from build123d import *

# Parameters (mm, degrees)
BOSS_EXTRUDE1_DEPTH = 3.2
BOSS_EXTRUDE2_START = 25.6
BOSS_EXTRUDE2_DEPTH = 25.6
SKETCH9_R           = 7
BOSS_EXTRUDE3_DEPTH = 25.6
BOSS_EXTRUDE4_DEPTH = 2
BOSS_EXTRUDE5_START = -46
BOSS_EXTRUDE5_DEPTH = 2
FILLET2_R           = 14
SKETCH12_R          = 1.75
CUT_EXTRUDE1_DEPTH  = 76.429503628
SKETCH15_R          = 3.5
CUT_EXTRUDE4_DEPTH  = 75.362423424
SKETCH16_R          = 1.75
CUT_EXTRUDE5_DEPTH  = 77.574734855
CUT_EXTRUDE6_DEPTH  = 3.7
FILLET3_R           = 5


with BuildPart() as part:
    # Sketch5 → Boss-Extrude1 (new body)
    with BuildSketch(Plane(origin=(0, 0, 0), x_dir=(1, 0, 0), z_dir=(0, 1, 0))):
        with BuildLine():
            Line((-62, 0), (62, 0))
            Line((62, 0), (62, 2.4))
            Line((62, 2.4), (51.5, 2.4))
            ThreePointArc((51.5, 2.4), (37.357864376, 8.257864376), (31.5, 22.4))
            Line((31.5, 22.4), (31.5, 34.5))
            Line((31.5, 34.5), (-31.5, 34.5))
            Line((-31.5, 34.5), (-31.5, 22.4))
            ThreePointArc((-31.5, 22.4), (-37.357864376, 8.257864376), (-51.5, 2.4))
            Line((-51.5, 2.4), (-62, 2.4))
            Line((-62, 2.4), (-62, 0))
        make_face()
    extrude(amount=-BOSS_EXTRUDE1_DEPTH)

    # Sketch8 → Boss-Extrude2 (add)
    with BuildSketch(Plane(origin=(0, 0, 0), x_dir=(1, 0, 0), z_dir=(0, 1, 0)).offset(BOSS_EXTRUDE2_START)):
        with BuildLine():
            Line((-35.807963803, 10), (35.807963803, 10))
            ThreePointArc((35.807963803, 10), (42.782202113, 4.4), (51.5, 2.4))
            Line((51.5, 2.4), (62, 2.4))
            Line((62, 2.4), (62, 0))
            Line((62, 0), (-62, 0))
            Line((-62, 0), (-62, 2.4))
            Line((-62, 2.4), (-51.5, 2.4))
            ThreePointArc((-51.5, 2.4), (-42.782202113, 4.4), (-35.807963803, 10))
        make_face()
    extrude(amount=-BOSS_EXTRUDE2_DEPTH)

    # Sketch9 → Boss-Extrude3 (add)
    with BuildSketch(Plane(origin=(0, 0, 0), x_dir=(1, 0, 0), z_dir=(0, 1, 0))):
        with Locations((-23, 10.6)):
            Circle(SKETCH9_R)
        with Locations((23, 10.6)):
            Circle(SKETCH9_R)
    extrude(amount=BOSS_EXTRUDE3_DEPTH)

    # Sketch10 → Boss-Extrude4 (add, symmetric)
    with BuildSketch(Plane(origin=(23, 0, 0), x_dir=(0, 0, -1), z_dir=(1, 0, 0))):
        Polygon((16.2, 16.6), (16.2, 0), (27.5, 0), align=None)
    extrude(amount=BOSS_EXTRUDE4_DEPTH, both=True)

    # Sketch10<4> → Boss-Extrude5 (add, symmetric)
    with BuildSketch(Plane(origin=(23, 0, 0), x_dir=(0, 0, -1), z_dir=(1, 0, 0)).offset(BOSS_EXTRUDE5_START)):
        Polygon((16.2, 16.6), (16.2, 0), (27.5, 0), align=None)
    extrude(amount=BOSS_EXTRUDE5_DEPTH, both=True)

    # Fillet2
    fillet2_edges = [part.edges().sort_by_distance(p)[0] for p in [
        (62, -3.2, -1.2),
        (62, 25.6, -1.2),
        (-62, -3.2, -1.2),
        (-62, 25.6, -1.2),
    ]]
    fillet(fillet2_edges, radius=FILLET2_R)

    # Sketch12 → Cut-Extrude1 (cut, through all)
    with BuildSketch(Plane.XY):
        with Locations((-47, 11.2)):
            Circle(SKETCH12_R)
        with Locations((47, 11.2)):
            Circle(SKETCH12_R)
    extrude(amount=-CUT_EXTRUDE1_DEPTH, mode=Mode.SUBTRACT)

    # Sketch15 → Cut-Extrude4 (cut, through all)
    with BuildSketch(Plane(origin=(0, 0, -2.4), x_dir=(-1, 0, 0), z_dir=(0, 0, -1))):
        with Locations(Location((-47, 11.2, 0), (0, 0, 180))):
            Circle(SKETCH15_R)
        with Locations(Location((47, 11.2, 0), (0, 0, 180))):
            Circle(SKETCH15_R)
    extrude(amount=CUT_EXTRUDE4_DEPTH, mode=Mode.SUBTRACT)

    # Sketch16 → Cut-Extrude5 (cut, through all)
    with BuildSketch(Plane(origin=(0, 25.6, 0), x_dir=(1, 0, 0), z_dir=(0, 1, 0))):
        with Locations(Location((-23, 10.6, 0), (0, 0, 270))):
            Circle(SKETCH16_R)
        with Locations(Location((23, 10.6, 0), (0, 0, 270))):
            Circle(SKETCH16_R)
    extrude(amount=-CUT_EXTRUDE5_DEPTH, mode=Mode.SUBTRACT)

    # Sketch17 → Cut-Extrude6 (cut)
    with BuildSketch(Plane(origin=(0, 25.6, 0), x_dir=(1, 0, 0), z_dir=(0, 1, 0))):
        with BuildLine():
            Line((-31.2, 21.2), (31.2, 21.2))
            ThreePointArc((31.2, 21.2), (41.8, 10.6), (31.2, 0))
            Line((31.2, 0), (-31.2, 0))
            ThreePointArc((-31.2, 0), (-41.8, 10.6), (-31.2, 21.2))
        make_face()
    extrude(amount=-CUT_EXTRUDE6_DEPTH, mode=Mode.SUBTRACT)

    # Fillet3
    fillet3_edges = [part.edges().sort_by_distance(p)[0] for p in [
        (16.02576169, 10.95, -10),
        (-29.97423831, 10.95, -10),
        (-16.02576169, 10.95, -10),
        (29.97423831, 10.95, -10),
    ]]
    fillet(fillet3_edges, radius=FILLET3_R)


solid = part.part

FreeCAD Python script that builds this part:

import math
import FreeCAD as App
import Part
import Sketcher
from FreeCAD import Vector


def edges_at(feature, points):
    """Names of the edges that pass closest to the given points."""
    edges = feature.Shape.Edges
    near = lambda p: min(range(len(edges)), key=lambda i: edges[i].distToShape(Part.Vertex(*p))[0])
    return sorted({f"Edge{near(p) + 1}" for p in points})


def add_polygon(sketch, points):
    """Adds a closed chain of lines whose ends are joined by coincident constraints."""
    first, n = sketch.GeometryCount, len(points)
    for a, b in zip(points, points[1:] + points[:1]):
        sketch.addGeometry(Part.LineSegment(App.Vector(*a, 0), App.Vector(*b, 0)), False)
    for i in range(n):
        sketch.addConstraint(Sketcher.Constraint("Coincident", first + i, 2, first + (i + 1) % n, 1))

doc = App.newDocument("Part")
body = doc.addObject("PartDesign::Body", "Body")

sketch1 = doc.addObject("Sketcher::SketchObject", "Sketch")
body.addObject(sketch1)
sketch1.AttachmentSupport = (doc.XZ_Plane, [""])
sketch1.MapMode = "FlatFace"
sketch1.addGeometry(Part.LineSegment(Vector(-62, 0, 0), Vector(62, 0, 0)), False)
sketch1.addGeometry(Part.LineSegment(Vector(62, 0, 0), Vector(62, -2.4, 0)), False)
sketch1.addGeometry(Part.LineSegment(Vector(62, -2.4, 0), Vector(51.5, -2.4, 0)), False)
sketch1.addGeometry(Part.ArcOfCircle(Part.Circle(Vector(51.5, -22.4, 0), Vector(0, 0, 1), 20), math.radians(90), math.radians(180)), False)
sketch1.addGeometry(Part.LineSegment(Vector(31.5, -22.4, 0), Vector(31.5, -34.5, 0)), False)
sketch1.addGeometry(Part.LineSegment(Vector(31.5, -34.5, 0), Vector(-31.5, -34.5, 0)), False)
sketch1.addGeometry(Part.LineSegment(Vector(-31.5, -34.5, 0), Vector(-31.5, -22.4, 0)), False)
sketch1.addGeometry(Part.ArcOfCircle(Part.Circle(Vector(-51.5, -22.4, 0), Vector(0, 0, 1), 20), math.radians(0), math.radians(90)), False)
sketch1.addGeometry(Part.LineSegment(Vector(-51.5, -2.4, 0), Vector(-62, -2.4, 0)), False)
sketch1.addGeometry(Part.LineSegment(Vector(-62, -2.4, 0), Vector(-62, 0, 0)), False)
sketch1.addConstraint(Sketcher.Constraint("Coincident", 0, 2, 1, 1))
sketch1.addConstraint(Sketcher.Constraint("Coincident", 1, 2, 2, 1))
sketch1.addConstraint(Sketcher.Constraint("Tangent", 2, 2, 3, 1))
sketch1.addConstraint(Sketcher.Constraint("Tangent", 3, 2, 4, 1))
sketch1.addConstraint(Sketcher.Constraint("Coincident", 4, 2, 5, 1))
sketch1.addConstraint(Sketcher.Constraint("Coincident", 5, 2, 6, 1))
sketch1.addConstraint(Sketcher.Constraint("Tangent", 6, 2, 7, 1))
sketch1.addConstraint(Sketcher.Constraint("Tangent", 7, 2, 8, 1))
sketch1.addConstraint(Sketcher.Constraint("Coincident", 8, 2, 9, 1))
sketch1.addConstraint(Sketcher.Constraint("Coincident", 9, 2, 0, 1))
sketch1.addConstraint(Sketcher.Constraint("Horizontal", 0))
sketch1.addConstraint(Sketcher.Constraint("Vertical", 1))
sketch1.addConstraint(Sketcher.Constraint("Horizontal", 2))
sketch1.addConstraint(Sketcher.Constraint("Vertical", 4))
sketch1.addConstraint(Sketcher.Constraint("Horizontal", 5))
sketch1.addConstraint(Sketcher.Constraint("Vertical", 6))
sketch1.addConstraint(Sketcher.Constraint("Horizontal", 8))
sketch1.addConstraint(Sketcher.Constraint("Vertical", 9))
sketch1.addConstraint(Sketcher.Constraint("Equal", 3, 7))
sketch1.addConstraint(Sketcher.Constraint("Symmetric", 0, 2, 9, 2, -1, 1))
sketch1.addConstraint(Sketcher.Constraint("Symmetric", 3, 3, 7, 3, -2))
sketch1.addConstraint(Sketcher.Constraint("Radius", 3, 20.0))
sketch1.addConstraint(Sketcher.Constraint("DistanceX", 0, 1, 0, 2, 124.0))
sketch1.addConstraint(Sketcher.Constraint("DistanceX", 5, 2, 5, 1, 63.0))
sketch1.addConstraint(Sketcher.Constraint("DistanceY", 1, 2, 1, 1, 2.4))
sketch1.addConstraint(Sketcher.Constraint("DistanceY", 4, 2, 4, 1, 12.1))
pad1 = doc.addObject("PartDesign::Pad", "Pad")
body.addObject(pad1)
pad1.Profile = sketch1
pad1.Length = 3.2

sketch2 = doc.addObject("Sketcher::SketchObject", "Sketch001")
body.addObject(sketch2)
sketch2.AttachmentSupport = (doc.XZ_Plane, [""])
sketch2.MapMode = "FlatFace"
sketch2.AttachmentOffset = App.Placement(Vector(0, 0, -25.6), App.Rotation())
sketch2.addGeometry(Part.LineSegment(Vector(35.807964, -10, 0), Vector(-35.807964, -10, 0)), False)
sketch2.addGeometry(Part.ArcOfCircle(Part.Circle(Vector(-51.5, -22.4, 0), Vector(0, 0, 1), 20), math.radians(38.316134), math.radians(90)), False)
sketch2.addGeometry(Part.LineSegment(Vector(-51.5, -2.4, 0), Vector(-62, -2.4, 0)), False)
sketch2.addGeometry(Part.LineSegment(Vector(-62, -2.4, 0), Vector(-62, 0, 0)), False)
sketch2.addGeometry(Part.LineSegment(Vector(-62, 0, 0), Vector(62, 0, 0)), False)
sketch2.addGeometry(Part.LineSegment(Vector(62, 0, 0), Vector(62, -2.4, 0)), False)
sketch2.addGeometry(Part.LineSegment(Vector(62, -2.4, 0), Vector(51.5, -2.4, 0)), False)
sketch2.addGeometry(Part.ArcOfCircle(Part.Circle(Vector(51.5, -22.4, 0), Vector(0, 0, 1), 20), math.radians(90), math.radians(141.683866)), False)
sketch2.addConstraint(Sketcher.Constraint("Coincident", 0, 2, 1, 1))
sketch2.addConstraint(Sketcher.Constraint("Tangent", 1, 2, 2, 1))
sketch2.addConstraint(Sketcher.Constraint("Coincident", 2, 2, 3, 1))
sketch2.addConstraint(Sketcher.Constraint("Coincident", 3, 2, 4, 1))
sketch2.addConstraint(Sketcher.Constraint("Coincident", 4, 2, 5, 1))
sketch2.addConstraint(Sketcher.Constraint("Coincident", 5, 2, 6, 1))
sketch2.addConstraint(Sketcher.Constraint("Tangent", 6, 2, 7, 1))
sketch2.addConstraint(Sketcher.Constraint("Coincident", 7, 2, 0, 1))
sketch2.addConstraint(Sketcher.Constraint("Horizontal", 0))
sketch2.addConstraint(Sketcher.Constraint("Horizontal", 2))
sketch2.addConstraint(Sketcher.Constraint("Vertical", 3))
sketch2.addConstraint(Sketcher.Constraint("Horizontal", 4))
sketch2.addConstraint(Sketcher.Constraint("Vertical", 5))
sketch2.addConstraint(Sketcher.Constraint("Horizontal", 6))
sketch2.addConstraint(Sketcher.Constraint("Equal", 1, 7))
sketch2.addConstraint(Sketcher.Constraint("Symmetric", 3, 2, 4, 2, -1, 1))
sketch2.addConstraint(Sketcher.Constraint("Symmetric", 1, 3, 7, 3, -2))
sketch2.addConstraint(Sketcher.Constraint("Radius", 1, 20.0))
sketch2.addConstraint(Sketcher.Constraint("DistanceX", 4, 1, 4, 2, 124.0))
sketch2.addConstraint(Sketcher.Constraint("DistanceX", 2, 2, 2, 1, 10.5))
sketch2.addConstraint(Sketcher.Constraint("DistanceY", 3, 1, 3, 2, 2.4))
sketch2.addConstraint(Sketcher.Constraint("DistanceY", 0, 2, -1, 1, 10.0))
pad2 = doc.addObject("PartDesign::Pad", "Pad001")
body.addObject(pad2)
pad2.Profile = sketch2
pad2.Length = 25.6

sketch3 = doc.addObject("Sketcher::SketchObject", "Sketch002")
body.addObject(sketch3)
sketch3.AttachmentSupport = (doc.XZ_Plane, [""])
sketch3.MapMode = "FlatFace"
sketch3.addGeometry(Part.Circle(Vector(-23, -10.6, 0), Vector(0, 0, 1), 7), False)
sketch3.addGeometry(Part.Circle(Vector(23, -10.6, 0), Vector(0, 0, 1), 7), False)
sketch3.addConstraint(Sketcher.Constraint("Equal", 0, 1))
sketch3.addConstraint(Sketcher.Constraint("Symmetric", 0, 3, 1, 3, -2))
sketch3.addConstraint(Sketcher.Constraint("Diameter", 0, 14.0))
sketch3.addConstraint(Sketcher.Constraint("DistanceX", 0, 3, -1, 1, 23.0))
sketch3.addConstraint(Sketcher.Constraint("DistanceY", 0, 3, -1, 1, 10.6))
pad3 = doc.addObject("PartDesign::Pad", "Pad002")
body.addObject(pad3)
pad3.Profile = sketch3
pad3.Length = 25.6
pad3.Reversed = True

sketch4 = doc.addObject("Sketcher::SketchObject", "Sketch003")
body.addObject(sketch4)
sketch4.AttachmentSupport = (doc.YZ_Plane, [""])
sketch4.MapMode = "FlatFace"
sketch4.AttachmentOffset = App.Placement(Vector(0, 0, 23), App.Rotation())
add_polygon(sketch4, [(16.6, -16.2), (0, -16.2), (0, -27.5)])
sketch4.addConstraint(Sketcher.Constraint("Horizontal", 0))
sketch4.addConstraint(Sketcher.Constraint("Vertical", 1))
sketch4.addConstraint(Sketcher.Constraint("PointOnObject", 0, 2, -2))
sketch4.addConstraint(Sketcher.Constraint("DistanceX", 0, 2, 0, 1, 16.6))
sketch4.addConstraint(Sketcher.Constraint("DistanceY", 1, 2, 1, 1, 11.3))
sketch4.addConstraint(Sketcher.Constraint("DistanceY", 0, 2, -1, 1, 16.2))
pad4 = doc.addObject("PartDesign::Pad", "Pad003")
body.addObject(pad4)
pad4.Profile = sketch4
pad4.Length = 4
pad4.Midplane = True

sketch5 = doc.addObject("Sketcher::SketchObject", "Sketch004")
body.addObject(sketch5)
sketch5.AttachmentSupport = (doc.YZ_Plane, [""])
sketch5.MapMode = "FlatFace"
sketch5.AttachmentOffset = App.Placement(Vector(0, 0, -23), App.Rotation())
add_polygon(sketch5, [(16.6, -16.2), (0, -16.2), (0, -27.5)])
sketch5.addConstraint(Sketcher.Constraint("Horizontal", 0))
sketch5.addConstraint(Sketcher.Constraint("Vertical", 1))
sketch5.addConstraint(Sketcher.Constraint("PointOnObject", 0, 2, -2))
sketch5.addConstraint(Sketcher.Constraint("DistanceX", 0, 2, 0, 1, 16.6))
sketch5.addConstraint(Sketcher.Constraint("DistanceY", 1, 2, 1, 1, 11.3))
sketch5.addConstraint(Sketcher.Constraint("DistanceY", 0, 2, -1, 1, 16.2))
pad5 = doc.addObject("PartDesign::Pad", "Pad004")
body.addObject(pad5)
pad5.Profile = sketch5
pad5.Length = 4
pad5.Midplane = True
doc.recompute()

fillet = doc.addObject("PartDesign::Fillet", "Fillet")
body.addObject(fillet)
fillet.Base = (pad5, edges_at(pad5, [
    (62, -3.2, -1.2),
    (62, 25.6, -1.2),
    (-62, -3.2, -1.2),
    (-62, 25.6, -1.2),
]))
fillet.Radius = 14

sketch6 = doc.addObject("Sketcher::SketchObject", "Sketch005")
body.addObject(sketch6)
sketch6.AttachmentSupport = (doc.XY_Plane, [""])
sketch6.MapMode = "FlatFace"
sketch6.addGeometry(Part.Circle(Vector(-47, 11.2, 0), Vector(0, 0, 1), 1.75), False)
sketch6.addGeometry(Part.Circle(Vector(47, 11.2, 0), Vector(0, 0, 1), 1.75), False)
sketch6.addConstraint(Sketcher.Constraint("Equal", 0, 1))
sketch6.addConstraint(Sketcher.Constraint("Symmetric", 0, 3, 1, 3, -2))
sketch6.addConstraint(Sketcher.Constraint("Diameter", 0, 3.5))
sketch6.addConstraint(Sketcher.Constraint("DistanceX", 0, 3, -1, 1, 47.0))
sketch6.addConstraint(Sketcher.Constraint("DistanceY", -1, 1, 0, 3, 11.2))
pocket1 = doc.addObject("PartDesign::Pocket", "Pocket")
body.addObject(pocket1)
pocket1.Profile = sketch6
pocket1.Type = "ThroughAll"

sketch7 = doc.addObject("Sketcher::SketchObject", "Sketch006")
body.addObject(sketch7)
sketch7.AttachmentSupport = (doc.XY_Plane, [""])
sketch7.MapMode = "FlatFace"
sketch7.AttachmentOffset = App.Placement(Vector(0, 0, -2.4), App.Rotation())
sketch7.addGeometry(Part.Circle(Vector(47, 11.2, 0), Vector(0, 0, 1), 3.5), False)
sketch7.addGeometry(Part.Circle(Vector(-47, 11.2, 0), Vector(0, 0, 1), 3.5), False)
sketch7.addConstraint(Sketcher.Constraint("Equal", 0, 1))
sketch7.addConstraint(Sketcher.Constraint("Symmetric", 0, 3, 1, 3, -2))
sketch7.addConstraint(Sketcher.Constraint("Diameter", 0, 7.0))
sketch7.addConstraint(Sketcher.Constraint("DistanceX", -1, 1, 0, 3, 47.0))
sketch7.addConstraint(Sketcher.Constraint("DistanceY", -1, 1, 0, 3, 11.2))
pocket2 = doc.addObject("PartDesign::Pocket", "Pocket001")
body.addObject(pocket2)
pocket2.Profile = sketch7
pocket2.Type = "ThroughAll"

sketch8 = doc.addObject("Sketcher::SketchObject", "Sketch007")
body.addObject(sketch8)
sketch8.AttachmentSupport = (doc.XZ_Plane, [""])
sketch8.MapMode = "FlatFace"
sketch8.AttachmentOffset = App.Placement(Vector(0, 0, -25.6), App.Rotation())
sketch8.addGeometry(Part.Circle(Vector(-23, -10.6, 0), Vector(0, 0, 1), 1.75), False)
sketch8.addGeometry(Part.Circle(Vector(23, -10.6, 0), Vector(0, 0, 1), 1.75), False)
sketch8.addConstraint(Sketcher.Constraint("Equal", 0, 1))
sketch8.addConstraint(Sketcher.Constraint("Symmetric", 0, 3, 1, 3, -2))
sketch8.addConstraint(Sketcher.Constraint("Diameter", 0, 3.5))
sketch8.addConstraint(Sketcher.Constraint("DistanceX", 0, 3, -1, 1, 23.0))
sketch8.addConstraint(Sketcher.Constraint("DistanceY", 0, 3, -1, 1, 10.6))
pocket3 = doc.addObject("PartDesign::Pocket", "Pocket002")
body.addObject(pocket3)
pocket3.Profile = sketch8
pocket3.Type = "ThroughAll"
pocket3.Reversed = True

sketch9 = doc.addObject("Sketcher::SketchObject", "Sketch008")
body.addObject(sketch9)
sketch9.AttachmentSupport = (doc.XZ_Plane, [""])
sketch9.MapMode = "FlatFace"
sketch9.AttachmentOffset = App.Placement(Vector(0, 0, -25.6), App.Rotation())
sketch9.addGeometry(Part.LineSegment(Vector(31.2, -21.2, 0), Vector(-31.2, -21.2, 0)), False)
sketch9.addGeometry(Part.ArcOfCircle(Part.Circle(Vector(-31.2, -10.6, 0), Vector(0, 0, 1), 10.6), math.radians(90), math.radians(270)), False)
sketch9.addGeometry(Part.LineSegment(Vector(-31.2, 0, 0), Vector(31.2, 0, 0)), False)
sketch9.addGeometry(Part.ArcOfCircle(Part.Circle(Vector(31.2, -10.6, 0), Vector(0, 0, 1), 10.6), math.radians(-90), math.radians(90)), False)
sketch9.addConstraint(Sketcher.Constraint("Tangent", 0, 2, 1, 2))
sketch9.addConstraint(Sketcher.Constraint("Tangent", 1, 1, 2, 1))
sketch9.addConstraint(Sketcher.Constraint("Tangent", 2, 2, 3, 2))
sketch9.addConstraint(Sketcher.Constraint("Tangent", 3, 1, 0, 1))
sketch9.addConstraint(Sketcher.Constraint("Horizontal", 0))
sketch9.addConstraint(Sketcher.Constraint("Horizontal", 2))
sketch9.addConstraint(Sketcher.Constraint("Symmetric", 1, 1, 2, 2, -1, 1))
sketch9.addConstraint(Sketcher.Constraint("Radius", 1, 10.6))
sketch9.addConstraint(Sketcher.Constraint("DistanceX", 0, 2, 0, 1, 62.4))
pocket4 = doc.addObject("PartDesign::Pocket", "Pocket003")
body.addObject(pocket4)
pocket4.Profile = sketch9
pocket4.Length = 3.7
pocket4.Reversed = True
doc.recompute()

fillet2 = doc.addObject("PartDesign::Fillet", "Fillet001")
body.addObject(fillet2)
fillet2.Base = (pocket4, edges_at(pocket4, [
    (16.026, 10.95, -10),
    (-29.974, 10.95, -10),
    (-16.026, 10.95, -10),
    (29.974, 10.95, -10),
]))
fillet2.Radius = 5

doc.recompute()
